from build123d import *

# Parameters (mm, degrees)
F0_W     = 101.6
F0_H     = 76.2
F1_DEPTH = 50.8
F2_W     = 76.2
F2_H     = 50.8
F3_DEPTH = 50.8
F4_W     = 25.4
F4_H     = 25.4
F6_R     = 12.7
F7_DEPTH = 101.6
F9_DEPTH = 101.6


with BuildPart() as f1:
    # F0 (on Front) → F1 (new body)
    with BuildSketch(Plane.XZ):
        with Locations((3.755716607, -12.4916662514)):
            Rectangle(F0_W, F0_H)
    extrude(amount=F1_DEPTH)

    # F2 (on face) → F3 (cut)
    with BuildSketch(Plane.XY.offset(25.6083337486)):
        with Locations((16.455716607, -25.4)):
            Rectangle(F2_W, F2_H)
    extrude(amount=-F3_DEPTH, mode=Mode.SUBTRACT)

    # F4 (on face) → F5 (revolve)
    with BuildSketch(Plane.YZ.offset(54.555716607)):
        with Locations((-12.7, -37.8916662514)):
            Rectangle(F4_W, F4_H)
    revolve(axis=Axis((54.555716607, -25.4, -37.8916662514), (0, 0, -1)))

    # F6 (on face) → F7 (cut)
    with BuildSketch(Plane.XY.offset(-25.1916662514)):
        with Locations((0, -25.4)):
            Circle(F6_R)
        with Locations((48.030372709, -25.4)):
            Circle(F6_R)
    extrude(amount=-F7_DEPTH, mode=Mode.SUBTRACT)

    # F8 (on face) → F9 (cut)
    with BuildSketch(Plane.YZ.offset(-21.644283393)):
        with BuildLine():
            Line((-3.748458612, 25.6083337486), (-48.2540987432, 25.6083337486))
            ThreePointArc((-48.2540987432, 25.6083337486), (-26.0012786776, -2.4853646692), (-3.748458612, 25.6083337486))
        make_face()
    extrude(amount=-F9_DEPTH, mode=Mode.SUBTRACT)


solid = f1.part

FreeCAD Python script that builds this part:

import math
import FreeCAD as App
import Part
import Sketcher

V = App.Vector
Q = App.Units.Quantity

doc = App.newDocument("Part")
body = doc.addObject("PartDesign::Body", "Body")

# Sketch on XZ plane
sketch1 = body.newObject("Sketcher::SketchObject", "Sketch")
sketch1.AttachmentSupport = (doc.getObject("XZ_Plane"), [""])
sketch1.MapMode = "FlatFace"
sketch1.addGeometry(Part.LineSegment(V(-47, 26, 0), V(-47, -51, 0)), False)
sketch1.addGeometry(Part.LineSegment(V(-47, -51, 0), V(55, -51, 0)), False)
sketch1.addGeometry(Part.LineSegment(V(55, -51, 0), V(55, 26, 0)), False)
sketch1.addGeometry(Part.LineSegment(V(55, 26, 0), V(-47, 26, 0)), False)
sketch1.addConstraint(Sketcher.Constraint("Coincident", 0, 2, 1, 1))
sketch1.addConstraint(Sketcher.Constraint("Coincident", 1, 2, 2, 1))
sketch1.addConstraint(Sketcher.Constraint("Coincident", 2, 2, 3, 1))
sketch1.addConstraint(Sketcher.Constraint("Coincident", 3, 2, 0, 1))
sketch1.addConstraint(Sketcher.Constraint("Vertical", 0))
sketch1.addConstraint(Sketcher.Constraint("Horizontal", 1))
sketch1.addConstraint(Sketcher.Constraint("Vertical", 2))
sketch1.addConstraint(Sketcher.Constraint("Horizontal", 3))
sketch1.addConstraint(Sketcher.Constraint("DistanceX", 1, 1, 1, 2, Q("4 in")))
sketch1.addConstraint(Sketcher.Constraint("DistanceY", 0, 2, 0, 1, Q("3 in")))
sketch1.addConstraint(Sketcher.Constraint("DistanceX", 0, 2, -1, 1, 47.044283))
sketch1.addConstraint(Sketcher.Constraint("DistanceY", 0, 2, -1, 1, 50.591666))
pad1 = body.newObject("PartDesign::Pad", "Pad")
pad1.Profile = sketch1
pad1.Length = Q("2 in")

# Sketch on XY plane
sketch2 = body.newObject("Sketcher::SketchObject", "Sketch001")
sketch2.AttachmentSupport = (doc.getObject("XY_Plane"), [""])
sketch2.MapMode = "FlatFace"
sketch2.AttachmentOffset = App.Placement(V(0, 0, 25.608334), App.Rotation())
sketch2.addGeometry(Part.LineSegment(V(-22, 0, 0), V(-22, -51, 0)), False)
sketch2.addGeometry(Part.LineSegment(V(-22, -51, 0), V(55, -51, 0)), False)
sketch2.addGeometry(Part.LineSegment(V(55, -51, 0), V(55, 0, 0)), False)
sketch2.addGeometry(Part.LineSegment(V(55, 0, 0), V(-22, 0, 0)), False)
sketch2.addConstraint(Sketcher.Constraint("Coincident", 0, 2, 1, 1))
sketch2.addConstraint(Sketcher.Constraint("Coincident", 1, 2, 2, 1))
sketch2.addConstraint(Sketcher.Constraint("Coincident", 2, 2, 3, 1))
sketch2.addConstraint(Sketcher.Constraint("Coincident", 3, 2, 0, 1))
sketch2.addConstraint(Sketcher.Constraint("Vertical", 0))
sketch2.addConstraint(Sketcher.Constraint("Horizontal", 1))
sketch2.addConstraint(Sketcher.Constraint("Vertical", 2))
sketch2.addConstraint(Sketcher.Constraint("Horizontal", 3))
sketch2.addConstraint(Sketcher.Constraint("PointOnObject", 2, 2, -1))
sketch2.addConstraint(Sketcher.Constraint("DistanceX", 1, 1, 1, 2, Q("3 in")))
sketch2.addConstraint(Sketcher.Constraint("DistanceY", 0, 2, 0, 1, Q("2 in")))
sketch2.addConstraint(Sketcher.Constraint("DistanceX", 0, 2, -1, 1, 21.644283))
pocket1 = body.newObject("PartDesign::Pocket", "Pocket")
pocket1.Profile = sketch2
pocket1.Length = Q("2 in")

# Sketch on YZ plane
sketch3 = body.newObject("Sketcher::SketchObject", "Sketch002")
sketch3.AttachmentSupport = (doc.getObject("YZ_Plane"), [""])
sketch3.MapMode = "FlatFace"
sketch3.AttachmentOffset = App.Placement(V(0, 0, 54.555717), App.Rotation())
sketch3.addGeometry(Part.LineSegment(V(-25, -25, 0), V(-25, -51, 0)), False)
sketch3.addGeometry(Part.LineSegment(V(-25, -51, 0), V(0, -51, 0)), False)
sketch3.addGeometry(Part.LineSegment(V(0, -51, 0), V(0, -25, 0)), False)
sketch3.addGeometry(Part.LineSegment(V(0, -25, 0), V(-25, -25, 0)), False)
sketch3.addGeometry(Part.LineSegment(V(-25, -25, 0), V(-25, -51, 0)), True)  # axis
sketch3.addConstraint(Sketcher.Constraint("Coincident", 0, 2, 1, 1))
sketch3.addConstraint(Sketcher.Constraint("Coincident", 1, 2, 2, 1))
sketch3.addConstraint(Sketcher.Constraint("Coincident", 2, 2, 3, 1))
sketch3.addConstraint(Sketcher.Constraint("Coincident", 3, 2, 0, 1))
sketch3.addConstraint(Sketcher.Constraint("Vertical", 0))
sketch3.addConstraint(Sketcher.Constraint("Horizontal", 1))
sketch3.addConstraint(Sketcher.Constraint("Vertical", 2))
sketch3.addConstraint(Sketcher.Constraint("Horizontal", 3))
sketch3.addConstraint(Sketcher.Constraint("Vertical", 4))
sketch3.addConstraint(Sketcher.Constraint("Coincident", 4, 1, 3, 2))
sketch3.addConstraint(Sketcher.Constraint("PointOnObject", 1, 2, -2))
sketch3.addConstraint(Sketcher.Constraint("Horizontal", 1, 2, 4, 2))
sketch3.addConstraint(Sketcher.Constraint("Equal", 3, 0))
sketch3.addConstraint(Sketcher.Constraint("DistanceX", 1, 1, 1, 2, Q("1 in")))
sketch3.addConstraint(Sketcher.Constraint("DistanceY", 0, 2, -1, 1, 50.591666))
revolution = body.newObject("PartDesign::Revolution", "Revolution")
revolution.Profile = sketch3
revolution.ReferenceAxis = (sketch3, ["Axis0"])
revolution.Angle = 360

# Sketch on XY plane
sketch4 = body.newObject("Sketcher::SketchObject", "Sketch003")
sketch4.AttachmentSupport = (doc.getObject("XY_Plane"), [""])
sketch4.MapMode = "FlatFace"
sketch4.AttachmentOffset = App.Placement(V(0, 0, -25.191666), App.Rotation())
sketch4.addGeometry(Part.Circle(V(0, -25, 0), V(0, 0, 1), 13), False)
sketch4.addGeometry(Part.Circle(V(48, -25, 0), V(0, 0, 1), 13), False)
sketch4.addConstraint(Sketcher.Constraint("Equal", 0, 1))
sketch4.addConstraint(Sketcher.Constraint("PointOnObject", 0, 3, -2))
sketch4.addConstraint(Sketcher.Constraint("Horizontal", 0, 3, 1, 3))
sketch4.addConstraint(Sketcher.Constraint("Diameter", 0, Q("1 in")))
sketch4.addConstraint(Sketcher.Constraint("DistanceY", 0, 3, -1, 1, Q("1 in")))
sketch4.addConstraint(Sketcher.Constraint("DistanceX", -1, 1, 1, 3, 48.030373))
pocket2 = body.newObject("PartDesign::Pocket", "Pocket001")
pocket2.Profile = sketch4
pocket2.Length = Q("4 in")

# Sketch on YZ plane
sketch5 = body.newObject("Sketcher::SketchObject", "Sketch004")
sketch5.AttachmentSupport = (doc.getObject("YZ_Plane"), [""])
sketch5.MapMode = "FlatFace"
sketch5.AttachmentOffset = App.Placement(V(0, 0, -21.644283), App.Rotation())
sketch5.addGeometry(Part.LineSegment(V(-4, 26, 0), V(-48, 26, 0)), False)
sketch5.addGeometry(Part.ArcOfCircle(Part.Circle(V(-26, 20, 0), V(0, 0, 1), 23), math.radians(167), math.radians(373)), False)
sketch5.addConstraint(Sketcher.Constraint("Coincident", 0, 1, 1, 2))
sketch5.addConstraint(Sketcher.Constraint("Coincident", 1, 1, 0, 2))
sketch5.addConstraint(Sketcher.Constraint("Horizontal", 0))
sketch5.addConstraint(Sketcher.Constraint("Radius", 1, Q("0.9 in")))
sketch5.addConstraint(Sketcher.Constraint("DistanceX", 0, 2, 0, 1, 44.50564))
sketch5.addConstraint(Sketcher.Constraint("DistanceX", 1, 1, -1, 1, 48.254099))
sketch5.addConstraint(Sketcher.Constraint("DistanceY", -1, 1, 1, 3, 20.374635))
pocket3 = body.newObject("PartDesign::Pocket", "Pocket002")
pocket3.Profile = sketch5
pocket3.Length = Q("4 in")

doc.recompute()
